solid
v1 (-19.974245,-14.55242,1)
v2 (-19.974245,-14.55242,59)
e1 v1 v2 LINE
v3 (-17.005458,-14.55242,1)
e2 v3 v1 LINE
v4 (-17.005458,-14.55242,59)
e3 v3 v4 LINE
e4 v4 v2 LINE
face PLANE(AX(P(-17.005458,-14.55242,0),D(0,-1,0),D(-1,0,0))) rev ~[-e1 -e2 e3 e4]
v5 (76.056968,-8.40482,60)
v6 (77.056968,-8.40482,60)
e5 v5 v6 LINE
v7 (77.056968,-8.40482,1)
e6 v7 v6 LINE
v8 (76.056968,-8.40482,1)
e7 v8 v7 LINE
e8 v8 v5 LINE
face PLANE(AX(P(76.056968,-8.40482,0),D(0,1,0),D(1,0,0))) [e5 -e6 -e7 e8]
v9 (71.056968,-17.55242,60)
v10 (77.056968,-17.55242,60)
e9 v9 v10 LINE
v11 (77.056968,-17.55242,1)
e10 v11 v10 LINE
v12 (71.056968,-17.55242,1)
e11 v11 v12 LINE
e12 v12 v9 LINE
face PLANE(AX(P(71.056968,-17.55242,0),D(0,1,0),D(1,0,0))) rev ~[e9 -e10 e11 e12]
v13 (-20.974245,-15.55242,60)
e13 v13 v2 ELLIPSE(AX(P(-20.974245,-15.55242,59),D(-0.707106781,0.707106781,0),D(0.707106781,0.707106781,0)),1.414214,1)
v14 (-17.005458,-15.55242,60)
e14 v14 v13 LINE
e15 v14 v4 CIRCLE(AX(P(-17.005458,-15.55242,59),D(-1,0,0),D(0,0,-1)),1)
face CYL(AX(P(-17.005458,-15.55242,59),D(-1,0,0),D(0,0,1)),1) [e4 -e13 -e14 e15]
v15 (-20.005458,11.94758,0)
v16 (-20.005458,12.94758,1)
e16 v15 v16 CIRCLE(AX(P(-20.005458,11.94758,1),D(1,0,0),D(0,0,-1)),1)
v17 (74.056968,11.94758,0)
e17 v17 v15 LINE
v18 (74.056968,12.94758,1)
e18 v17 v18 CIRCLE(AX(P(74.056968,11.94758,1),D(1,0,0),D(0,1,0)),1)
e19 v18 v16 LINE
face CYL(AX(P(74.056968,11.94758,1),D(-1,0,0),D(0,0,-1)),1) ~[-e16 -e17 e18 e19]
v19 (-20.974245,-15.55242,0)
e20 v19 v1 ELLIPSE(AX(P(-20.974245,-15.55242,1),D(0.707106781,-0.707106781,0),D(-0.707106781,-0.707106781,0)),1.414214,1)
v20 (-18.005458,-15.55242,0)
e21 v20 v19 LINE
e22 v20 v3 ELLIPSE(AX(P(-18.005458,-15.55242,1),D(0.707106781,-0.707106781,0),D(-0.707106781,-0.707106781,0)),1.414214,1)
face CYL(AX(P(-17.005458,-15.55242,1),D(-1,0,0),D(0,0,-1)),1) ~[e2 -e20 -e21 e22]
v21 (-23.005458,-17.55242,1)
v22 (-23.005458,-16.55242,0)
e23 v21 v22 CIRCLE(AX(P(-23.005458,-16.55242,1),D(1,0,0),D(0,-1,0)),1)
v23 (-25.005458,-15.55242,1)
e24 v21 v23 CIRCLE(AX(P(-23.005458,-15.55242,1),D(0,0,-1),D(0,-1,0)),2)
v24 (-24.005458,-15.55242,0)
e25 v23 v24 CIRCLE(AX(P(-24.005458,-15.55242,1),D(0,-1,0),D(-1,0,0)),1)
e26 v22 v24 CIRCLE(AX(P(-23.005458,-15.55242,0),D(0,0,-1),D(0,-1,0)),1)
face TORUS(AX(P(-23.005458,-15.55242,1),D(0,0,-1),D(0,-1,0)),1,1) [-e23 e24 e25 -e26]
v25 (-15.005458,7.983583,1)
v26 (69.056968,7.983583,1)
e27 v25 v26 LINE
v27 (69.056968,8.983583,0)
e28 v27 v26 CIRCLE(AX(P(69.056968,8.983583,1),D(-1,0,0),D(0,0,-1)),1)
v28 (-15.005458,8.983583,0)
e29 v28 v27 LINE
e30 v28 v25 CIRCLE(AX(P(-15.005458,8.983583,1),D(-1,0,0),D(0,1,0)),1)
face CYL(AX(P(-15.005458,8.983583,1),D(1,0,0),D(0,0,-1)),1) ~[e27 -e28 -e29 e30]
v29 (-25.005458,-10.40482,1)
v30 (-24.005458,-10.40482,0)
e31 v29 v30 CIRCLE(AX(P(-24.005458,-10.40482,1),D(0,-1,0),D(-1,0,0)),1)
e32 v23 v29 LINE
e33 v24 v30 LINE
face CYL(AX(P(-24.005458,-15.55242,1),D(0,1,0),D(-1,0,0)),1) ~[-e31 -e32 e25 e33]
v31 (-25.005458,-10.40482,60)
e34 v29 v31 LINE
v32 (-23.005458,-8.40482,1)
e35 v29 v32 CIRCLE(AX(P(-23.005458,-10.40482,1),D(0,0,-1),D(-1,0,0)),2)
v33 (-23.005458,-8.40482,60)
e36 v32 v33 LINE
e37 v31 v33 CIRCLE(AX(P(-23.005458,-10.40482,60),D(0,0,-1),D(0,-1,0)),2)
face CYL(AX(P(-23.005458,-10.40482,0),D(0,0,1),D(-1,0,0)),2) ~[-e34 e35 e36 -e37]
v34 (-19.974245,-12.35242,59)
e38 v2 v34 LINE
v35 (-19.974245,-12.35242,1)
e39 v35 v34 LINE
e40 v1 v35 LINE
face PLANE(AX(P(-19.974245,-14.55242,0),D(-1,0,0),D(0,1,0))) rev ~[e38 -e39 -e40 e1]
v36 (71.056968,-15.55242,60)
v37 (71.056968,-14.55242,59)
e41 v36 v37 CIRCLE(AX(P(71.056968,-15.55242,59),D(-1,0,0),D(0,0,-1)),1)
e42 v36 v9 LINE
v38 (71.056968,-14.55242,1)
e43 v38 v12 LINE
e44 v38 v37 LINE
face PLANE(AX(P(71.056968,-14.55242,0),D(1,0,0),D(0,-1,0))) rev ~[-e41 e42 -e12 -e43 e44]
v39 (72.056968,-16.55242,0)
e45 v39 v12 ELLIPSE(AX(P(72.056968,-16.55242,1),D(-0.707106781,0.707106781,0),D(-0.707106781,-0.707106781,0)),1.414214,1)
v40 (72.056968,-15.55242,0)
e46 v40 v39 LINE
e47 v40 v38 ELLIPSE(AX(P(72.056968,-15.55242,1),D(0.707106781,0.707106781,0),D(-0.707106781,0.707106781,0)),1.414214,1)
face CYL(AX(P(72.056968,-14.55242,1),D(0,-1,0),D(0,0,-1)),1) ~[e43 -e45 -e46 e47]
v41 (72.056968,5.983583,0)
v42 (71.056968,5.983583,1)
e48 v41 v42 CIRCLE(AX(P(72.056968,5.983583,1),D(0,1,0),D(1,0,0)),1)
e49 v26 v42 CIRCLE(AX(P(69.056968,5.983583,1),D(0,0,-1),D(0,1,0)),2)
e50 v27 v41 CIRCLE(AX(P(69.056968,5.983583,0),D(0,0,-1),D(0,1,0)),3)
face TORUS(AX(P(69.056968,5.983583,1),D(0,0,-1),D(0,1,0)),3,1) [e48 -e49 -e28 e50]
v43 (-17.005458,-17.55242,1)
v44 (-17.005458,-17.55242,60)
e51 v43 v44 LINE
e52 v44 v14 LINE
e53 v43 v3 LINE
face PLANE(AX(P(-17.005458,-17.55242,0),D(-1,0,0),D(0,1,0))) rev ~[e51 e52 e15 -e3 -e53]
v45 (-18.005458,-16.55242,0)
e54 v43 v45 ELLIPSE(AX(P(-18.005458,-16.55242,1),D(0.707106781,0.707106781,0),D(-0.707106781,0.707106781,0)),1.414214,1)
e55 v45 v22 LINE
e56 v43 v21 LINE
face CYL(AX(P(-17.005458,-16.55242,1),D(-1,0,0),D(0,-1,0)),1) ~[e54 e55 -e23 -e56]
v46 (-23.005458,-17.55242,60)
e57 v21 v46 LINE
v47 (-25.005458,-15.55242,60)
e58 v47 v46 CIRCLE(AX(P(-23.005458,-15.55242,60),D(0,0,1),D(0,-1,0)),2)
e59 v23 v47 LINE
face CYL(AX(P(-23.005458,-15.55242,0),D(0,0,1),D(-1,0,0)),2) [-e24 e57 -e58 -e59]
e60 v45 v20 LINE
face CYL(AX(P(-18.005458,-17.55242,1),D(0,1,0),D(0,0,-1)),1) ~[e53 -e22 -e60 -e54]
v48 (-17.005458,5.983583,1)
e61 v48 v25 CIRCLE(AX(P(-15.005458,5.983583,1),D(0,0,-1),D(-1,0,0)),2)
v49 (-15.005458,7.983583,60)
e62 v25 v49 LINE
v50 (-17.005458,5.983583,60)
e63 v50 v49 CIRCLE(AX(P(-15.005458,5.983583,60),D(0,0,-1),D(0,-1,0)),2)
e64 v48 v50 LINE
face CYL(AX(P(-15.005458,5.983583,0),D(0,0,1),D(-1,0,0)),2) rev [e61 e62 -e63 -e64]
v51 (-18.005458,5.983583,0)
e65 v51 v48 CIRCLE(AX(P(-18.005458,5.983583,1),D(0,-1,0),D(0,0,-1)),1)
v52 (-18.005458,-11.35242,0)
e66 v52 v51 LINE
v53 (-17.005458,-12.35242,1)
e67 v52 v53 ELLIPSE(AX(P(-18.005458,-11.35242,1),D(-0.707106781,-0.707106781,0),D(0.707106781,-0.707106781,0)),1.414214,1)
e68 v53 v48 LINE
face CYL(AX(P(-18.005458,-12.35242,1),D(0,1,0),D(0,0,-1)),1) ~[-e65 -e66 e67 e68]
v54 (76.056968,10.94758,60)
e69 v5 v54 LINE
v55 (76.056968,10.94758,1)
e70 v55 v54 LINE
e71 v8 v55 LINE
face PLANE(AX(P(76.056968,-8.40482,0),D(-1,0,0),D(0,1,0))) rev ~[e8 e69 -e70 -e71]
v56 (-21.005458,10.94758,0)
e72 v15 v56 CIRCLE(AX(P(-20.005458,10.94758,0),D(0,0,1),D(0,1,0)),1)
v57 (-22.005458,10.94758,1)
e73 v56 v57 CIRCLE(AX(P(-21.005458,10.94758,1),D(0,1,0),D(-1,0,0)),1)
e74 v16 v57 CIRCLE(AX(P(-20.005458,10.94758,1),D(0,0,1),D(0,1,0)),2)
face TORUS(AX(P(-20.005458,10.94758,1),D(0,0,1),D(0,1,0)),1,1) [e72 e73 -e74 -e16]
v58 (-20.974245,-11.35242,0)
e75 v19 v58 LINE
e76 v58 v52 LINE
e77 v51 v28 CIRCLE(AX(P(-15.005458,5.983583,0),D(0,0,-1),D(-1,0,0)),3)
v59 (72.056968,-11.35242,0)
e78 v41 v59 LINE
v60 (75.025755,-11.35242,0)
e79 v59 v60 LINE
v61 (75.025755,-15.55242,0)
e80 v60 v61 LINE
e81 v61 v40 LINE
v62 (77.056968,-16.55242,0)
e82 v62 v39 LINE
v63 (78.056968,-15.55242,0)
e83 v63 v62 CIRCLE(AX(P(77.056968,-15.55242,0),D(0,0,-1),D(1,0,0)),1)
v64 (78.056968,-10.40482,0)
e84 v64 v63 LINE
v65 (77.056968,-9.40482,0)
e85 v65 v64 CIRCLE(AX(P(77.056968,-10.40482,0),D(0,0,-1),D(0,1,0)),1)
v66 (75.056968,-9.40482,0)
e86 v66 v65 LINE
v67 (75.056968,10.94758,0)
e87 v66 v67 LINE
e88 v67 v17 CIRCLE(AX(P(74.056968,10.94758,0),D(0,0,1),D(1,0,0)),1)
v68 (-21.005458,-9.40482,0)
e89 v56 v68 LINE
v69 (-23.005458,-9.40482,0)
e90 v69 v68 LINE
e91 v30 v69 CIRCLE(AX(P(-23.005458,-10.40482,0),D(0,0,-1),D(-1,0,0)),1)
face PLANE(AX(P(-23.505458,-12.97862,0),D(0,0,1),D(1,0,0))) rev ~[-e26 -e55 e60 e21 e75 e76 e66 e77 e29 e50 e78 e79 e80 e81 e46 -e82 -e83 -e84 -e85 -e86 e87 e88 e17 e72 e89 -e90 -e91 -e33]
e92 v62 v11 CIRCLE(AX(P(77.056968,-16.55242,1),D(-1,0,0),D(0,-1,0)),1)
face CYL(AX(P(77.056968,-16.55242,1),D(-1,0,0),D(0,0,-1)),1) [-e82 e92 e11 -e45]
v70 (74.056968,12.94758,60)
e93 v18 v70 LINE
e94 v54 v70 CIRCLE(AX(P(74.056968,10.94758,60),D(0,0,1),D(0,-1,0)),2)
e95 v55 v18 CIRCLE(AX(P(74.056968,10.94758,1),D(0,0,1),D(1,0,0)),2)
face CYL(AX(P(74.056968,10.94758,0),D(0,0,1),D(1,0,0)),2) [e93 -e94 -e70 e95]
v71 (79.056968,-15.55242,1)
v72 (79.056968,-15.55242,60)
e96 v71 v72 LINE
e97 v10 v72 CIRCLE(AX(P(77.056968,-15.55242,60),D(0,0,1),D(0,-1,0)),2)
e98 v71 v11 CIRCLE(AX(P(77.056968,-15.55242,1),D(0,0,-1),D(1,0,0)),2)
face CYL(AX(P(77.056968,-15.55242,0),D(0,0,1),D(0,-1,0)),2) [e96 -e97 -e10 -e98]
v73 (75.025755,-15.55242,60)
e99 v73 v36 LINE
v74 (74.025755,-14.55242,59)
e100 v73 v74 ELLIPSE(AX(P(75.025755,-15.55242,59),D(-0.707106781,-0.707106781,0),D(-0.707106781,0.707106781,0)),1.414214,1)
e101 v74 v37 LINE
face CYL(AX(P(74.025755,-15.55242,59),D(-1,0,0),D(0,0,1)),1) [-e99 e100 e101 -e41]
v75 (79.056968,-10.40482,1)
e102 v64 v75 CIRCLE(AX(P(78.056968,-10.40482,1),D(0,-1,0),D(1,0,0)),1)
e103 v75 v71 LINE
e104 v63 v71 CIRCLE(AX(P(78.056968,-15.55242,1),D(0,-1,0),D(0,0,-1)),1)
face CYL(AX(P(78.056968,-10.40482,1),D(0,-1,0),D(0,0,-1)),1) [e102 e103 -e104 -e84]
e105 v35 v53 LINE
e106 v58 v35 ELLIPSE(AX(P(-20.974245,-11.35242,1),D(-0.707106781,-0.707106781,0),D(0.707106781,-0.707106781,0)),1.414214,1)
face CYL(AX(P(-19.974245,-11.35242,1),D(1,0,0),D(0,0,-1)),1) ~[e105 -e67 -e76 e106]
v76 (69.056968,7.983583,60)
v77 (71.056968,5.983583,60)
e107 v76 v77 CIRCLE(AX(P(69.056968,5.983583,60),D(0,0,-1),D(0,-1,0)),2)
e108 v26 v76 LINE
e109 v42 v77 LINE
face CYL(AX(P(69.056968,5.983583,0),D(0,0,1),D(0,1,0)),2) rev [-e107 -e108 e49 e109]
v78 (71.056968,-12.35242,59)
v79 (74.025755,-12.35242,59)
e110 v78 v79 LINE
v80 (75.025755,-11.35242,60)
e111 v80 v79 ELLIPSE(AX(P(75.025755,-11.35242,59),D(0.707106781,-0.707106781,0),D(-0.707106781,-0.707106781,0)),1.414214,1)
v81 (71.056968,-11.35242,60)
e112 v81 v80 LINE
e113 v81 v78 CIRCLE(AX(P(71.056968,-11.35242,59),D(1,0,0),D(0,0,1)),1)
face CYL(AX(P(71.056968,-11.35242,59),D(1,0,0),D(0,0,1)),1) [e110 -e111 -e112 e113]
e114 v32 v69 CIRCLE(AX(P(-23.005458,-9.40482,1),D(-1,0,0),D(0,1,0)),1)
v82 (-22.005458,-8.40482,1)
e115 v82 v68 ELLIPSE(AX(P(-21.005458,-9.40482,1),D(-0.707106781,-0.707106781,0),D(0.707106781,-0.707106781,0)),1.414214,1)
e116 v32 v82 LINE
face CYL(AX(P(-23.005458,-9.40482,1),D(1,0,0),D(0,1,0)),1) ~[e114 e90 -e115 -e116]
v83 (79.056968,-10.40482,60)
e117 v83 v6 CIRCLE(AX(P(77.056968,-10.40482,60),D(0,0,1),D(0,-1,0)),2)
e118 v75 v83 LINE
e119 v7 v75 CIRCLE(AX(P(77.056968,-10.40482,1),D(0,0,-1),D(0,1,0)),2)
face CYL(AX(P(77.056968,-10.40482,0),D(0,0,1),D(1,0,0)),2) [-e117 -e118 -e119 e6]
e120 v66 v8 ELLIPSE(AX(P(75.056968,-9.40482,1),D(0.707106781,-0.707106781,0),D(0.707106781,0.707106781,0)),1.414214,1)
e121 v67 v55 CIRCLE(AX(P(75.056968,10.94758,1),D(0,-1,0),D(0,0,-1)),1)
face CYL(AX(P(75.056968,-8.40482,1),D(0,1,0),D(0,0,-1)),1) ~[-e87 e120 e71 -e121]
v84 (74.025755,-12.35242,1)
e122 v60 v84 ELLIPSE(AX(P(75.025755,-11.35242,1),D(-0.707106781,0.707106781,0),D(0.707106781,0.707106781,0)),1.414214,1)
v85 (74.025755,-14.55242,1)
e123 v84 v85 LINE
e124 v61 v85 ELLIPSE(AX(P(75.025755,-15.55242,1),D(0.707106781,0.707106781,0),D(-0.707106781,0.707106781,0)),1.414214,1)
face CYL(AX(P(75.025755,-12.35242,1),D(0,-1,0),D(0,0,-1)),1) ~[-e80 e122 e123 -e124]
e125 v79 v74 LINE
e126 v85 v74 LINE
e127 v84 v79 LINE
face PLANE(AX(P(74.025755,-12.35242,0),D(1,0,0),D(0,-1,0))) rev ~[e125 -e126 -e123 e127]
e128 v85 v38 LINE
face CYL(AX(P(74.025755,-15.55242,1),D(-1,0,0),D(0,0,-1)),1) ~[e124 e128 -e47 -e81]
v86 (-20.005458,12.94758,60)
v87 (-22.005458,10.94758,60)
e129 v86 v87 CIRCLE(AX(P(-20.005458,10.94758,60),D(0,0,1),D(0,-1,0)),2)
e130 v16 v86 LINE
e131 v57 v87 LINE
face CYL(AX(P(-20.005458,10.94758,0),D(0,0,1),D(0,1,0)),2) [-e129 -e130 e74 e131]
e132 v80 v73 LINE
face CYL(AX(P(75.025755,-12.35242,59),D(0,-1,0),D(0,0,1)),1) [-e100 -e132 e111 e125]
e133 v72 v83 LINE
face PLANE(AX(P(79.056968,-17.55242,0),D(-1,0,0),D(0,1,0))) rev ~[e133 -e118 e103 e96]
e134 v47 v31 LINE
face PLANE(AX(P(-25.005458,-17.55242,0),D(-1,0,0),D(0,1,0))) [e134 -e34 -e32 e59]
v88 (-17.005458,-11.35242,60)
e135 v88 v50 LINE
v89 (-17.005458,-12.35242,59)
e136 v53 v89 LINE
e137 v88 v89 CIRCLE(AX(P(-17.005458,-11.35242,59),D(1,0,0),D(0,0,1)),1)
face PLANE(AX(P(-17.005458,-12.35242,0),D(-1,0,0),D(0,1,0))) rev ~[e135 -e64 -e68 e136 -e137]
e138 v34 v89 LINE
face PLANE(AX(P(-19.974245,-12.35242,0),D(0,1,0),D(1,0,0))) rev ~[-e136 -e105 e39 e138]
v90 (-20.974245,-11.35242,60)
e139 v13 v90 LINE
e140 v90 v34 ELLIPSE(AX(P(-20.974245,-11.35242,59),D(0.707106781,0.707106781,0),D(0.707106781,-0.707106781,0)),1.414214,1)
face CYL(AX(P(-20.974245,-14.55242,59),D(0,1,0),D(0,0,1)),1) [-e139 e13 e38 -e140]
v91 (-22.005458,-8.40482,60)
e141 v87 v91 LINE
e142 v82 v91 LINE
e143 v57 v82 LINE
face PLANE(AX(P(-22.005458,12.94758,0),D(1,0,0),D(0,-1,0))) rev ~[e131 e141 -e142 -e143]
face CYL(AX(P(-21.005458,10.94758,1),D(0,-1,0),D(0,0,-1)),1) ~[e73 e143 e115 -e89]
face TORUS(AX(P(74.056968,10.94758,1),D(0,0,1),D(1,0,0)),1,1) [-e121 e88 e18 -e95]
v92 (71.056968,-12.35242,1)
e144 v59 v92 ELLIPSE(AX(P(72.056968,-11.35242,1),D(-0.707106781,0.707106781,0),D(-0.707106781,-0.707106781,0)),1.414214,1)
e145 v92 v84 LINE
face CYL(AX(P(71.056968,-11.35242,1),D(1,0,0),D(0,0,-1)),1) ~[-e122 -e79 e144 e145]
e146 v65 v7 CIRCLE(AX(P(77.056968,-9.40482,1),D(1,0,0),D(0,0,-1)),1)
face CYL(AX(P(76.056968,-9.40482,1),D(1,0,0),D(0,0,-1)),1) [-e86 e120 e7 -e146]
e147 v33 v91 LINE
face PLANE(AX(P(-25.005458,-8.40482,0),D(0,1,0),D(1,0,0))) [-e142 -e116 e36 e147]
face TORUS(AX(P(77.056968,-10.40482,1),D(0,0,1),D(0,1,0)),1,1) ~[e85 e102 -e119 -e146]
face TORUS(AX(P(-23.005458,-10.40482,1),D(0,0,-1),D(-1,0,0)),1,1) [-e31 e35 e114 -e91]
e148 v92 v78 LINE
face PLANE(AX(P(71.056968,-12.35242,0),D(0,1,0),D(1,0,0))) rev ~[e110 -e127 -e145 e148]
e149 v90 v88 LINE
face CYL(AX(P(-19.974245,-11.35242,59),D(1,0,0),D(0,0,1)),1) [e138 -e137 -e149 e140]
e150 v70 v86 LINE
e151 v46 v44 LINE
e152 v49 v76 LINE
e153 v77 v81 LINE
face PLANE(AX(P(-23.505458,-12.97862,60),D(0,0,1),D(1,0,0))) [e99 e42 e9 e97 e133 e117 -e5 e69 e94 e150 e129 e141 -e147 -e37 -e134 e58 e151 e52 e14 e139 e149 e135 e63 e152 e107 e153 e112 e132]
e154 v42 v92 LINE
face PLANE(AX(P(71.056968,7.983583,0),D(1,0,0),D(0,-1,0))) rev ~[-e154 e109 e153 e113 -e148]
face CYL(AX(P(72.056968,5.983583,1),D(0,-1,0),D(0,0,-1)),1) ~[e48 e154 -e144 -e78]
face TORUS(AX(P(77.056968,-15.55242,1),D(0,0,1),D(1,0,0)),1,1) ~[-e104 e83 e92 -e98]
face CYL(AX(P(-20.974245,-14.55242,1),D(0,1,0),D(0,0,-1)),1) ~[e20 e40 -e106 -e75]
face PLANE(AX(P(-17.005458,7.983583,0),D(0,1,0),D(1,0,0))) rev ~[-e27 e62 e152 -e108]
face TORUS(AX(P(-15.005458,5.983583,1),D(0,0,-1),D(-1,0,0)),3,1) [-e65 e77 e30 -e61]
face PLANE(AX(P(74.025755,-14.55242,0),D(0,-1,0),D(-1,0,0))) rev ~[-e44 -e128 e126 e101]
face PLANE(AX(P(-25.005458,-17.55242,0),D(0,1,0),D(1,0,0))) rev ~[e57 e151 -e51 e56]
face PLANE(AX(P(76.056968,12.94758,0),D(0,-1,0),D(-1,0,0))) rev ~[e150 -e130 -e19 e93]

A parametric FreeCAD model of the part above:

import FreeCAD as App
import Part
import Sketcher
from FreeCAD import Vector
Q = App.Units.Quantity


def edges_at(feature, points):
    """Names of the edges that pass closest to the given points."""
    edges = feature.Shape.Edges
    near = lambda p: min(range(len(edges)), key=lambda i: edges[i].distToShape(Part.Vertex(*p))[0])
    return sorted({f"Edge{near(p) + 1}" for p in points})


def add_polygon(sketch, points):
    """Adds a closed chain of lines whose ends are joined by coincident constraints."""
    first, n = sketch.GeometryCount, len(points)
    for a, b in zip(points, points[1:] + points[:1]):
        sketch.addGeometry(Part.LineSegment(App.Vector(*a, 0), App.Vector(*b, 0)), False)
    for i in range(n):
        sketch.addConstraint(Sketcher.Constraint("Coincident", first + i, 2, first + (i + 1) % n, 1))

doc = App.newDocument("Part")
body = doc.addObject("PartDesign::Body", "Body")

# Sketch on XY plane
sketch1 = doc.addObject("Sketcher::SketchObject", "Sketch")
body.addObject(sketch1)
sketch1.AttachmentSupport = (doc.XY_Plane, [""])
sketch1.MapMode = "FlatFace"
add_polygon(sketch1, [(-25, -8.4), (-25, -17.6), (-17, -17.6), (-17, -14.6), (-20, -14.6), (-20, -12.4), (-17, -12.4), (-17, 8), (71.1, 8), (71.1, -12.4), (74, -12.4), (74, -14.6), (71.1, -14.6), (71.1, -17.6), (79.1, -17.6), (79.1, -8.4), (76.1, -8.4), (76.1, 12.9), (-22, 12.9), (-22, -8.4)])  # lines 0-19
sketch1.addConstraint([
    Sketcher.Constraint("Vertical", 0),
    Sketcher.Constraint("Horizontal", 1),
    Sketcher.Constraint("Vertical", 2),
    Sketcher.Constraint("Horizontal", 3),
    Sketcher.Constraint("Vertical", 4),
    Sketcher.Constraint("Horizontal", 5),
    Sketcher.Constraint("Vertical", 6),
    Sketcher.Constraint("Horizontal", 7),
    Sketcher.Constraint("Vertical", 8),
    Sketcher.Constraint("Horizontal", 9),
    Sketcher.Constraint("Vertical", 10),
    Sketcher.Constraint("Horizontal", 11),
    Sketcher.Constraint("Vertical", 12),
    Sketcher.Constraint("Horizontal", 13),
    Sketcher.Constraint("Vertical", 14),
    Sketcher.Constraint("Horizontal", 15),
    Sketcher.Constraint("Vertical", 16),
    Sketcher.Constraint("Horizontal", 17),
    Sketcher.Constraint("Vertical", 18),
    Sketcher.Constraint("Horizontal", 19),
    Sketcher.Constraint("Horizontal", 5, 2, 8, 2),
    Sketcher.Constraint("Horizontal", 3, 2, 10, 2),
    Sketcher.Constraint("Horizontal", 1, 2, 12, 2),
    Sketcher.Constraint("Horizontal", 15, 2, 18, 2),
    Sketcher.Constraint("Vertical", 2, 2, 5, 2),
    Sketcher.Constraint("Vertical", 8, 2, 11, 2),
    Sketcher.Constraint("Equal", 5, 9),
    Sketcher.Constraint("Equal", 1, 13),
    Sketcher.Constraint("Equal", 15, 19),
    Sketcher.Constraint("Equal", 19, 2),
    Sketcher.Constraint("DistanceX", 1, 1, 1, 2, Q("8 mm")),
    Sketcher.Constraint("DistanceX", 15, 2, 15, 1, Q("3 mm")),
    Sketcher.Constraint("DistanceY", 4, 1, 4, 2, Q("2.2 mm")),
    Sketcher.Constraint("DistanceY", 9, 2, 16, 2, Q("25.3 mm")),
    Sketcher.Constraint("DistanceY", 0, 2, 0, 1, Q("9.1476 mm")),
    Sketcher.Constraint("DistanceX", 3, 2, 3, 1, Q("2.968787 mm")),
    Sketcher.Constraint("DistanceX", 7, 1, 7, 2, Q("88.062426 mm")),
    Sketcher.Constraint("DistanceY", 6, 1, 6, 2, Q("20.336003 mm")),
    Sketcher.Constraint("DistanceX", 0, 2, -1, 1, Q("25.005458 mm")),
    Sketcher.Constraint("DistanceY", 0, 2, -1, 1, Q("17.55242 mm")),
])
pad1 = doc.addObject("PartDesign::Pad", "Pad")
body.addObject(pad1)
pad1.Profile = sketch1
pad1.Length = 60
doc.recompute()

fillet = doc.addObject("PartDesign::Fillet", "Fillet")
body.addObject(fillet)
fillet.Base = (pad1, edges_at(pad1, [
    (-22.005, 12.948, 30),
    (76.057, 12.948, 30),
    (-25.005, -8.405, 30),
    (-25.005, -17.552, 30),
    (79.057, -8.405, 30),
    (79.057, -17.552, 30),
    (-17.005, 7.984, 30),
    (71.057, 7.984, 30),
]))
fillet.Radius = 2
doc.recompute()

fillet2 = doc.addObject("PartDesign::Fillet", "Fillet001")
body.addObject(fillet2)
fillet2.Base = (fillet, edges_at(fillet, [
    (-18.49, -14.552, 0),
    (-18.49, -12.352, 0),
    (-19.974, -13.452, 0),
    (-18.49, -12.352, 60),
    (-19.974, -13.452, 60),
    (-18.49, -14.552, 60),
    (72.541, -14.552, 0),
    (-25.005, -12.979, 0),
    (-24.42, -8.991, 0),
    (-24.42, -16.967, 0),
    (-22.505, -8.405, 0),
    (-20.005, -17.552, 0),
    (-22.005, 1.271, 0),
    (-17.005, -16.052, 0),
    (-21.42, 12.362, 0),
    (27.026, 12.948, 0),
    (75.471, 12.362, 0),
    (76.057, 1.271, 0),
    (-17.005, -3.184, 0),
    (76.557, -8.405, 0),
    (-16.42, 7.398, 0),
    (78.471, -8.991, 0),
    (27.026, 7.984, 0),
    (79.057, -12.979, 0),
    (70.471, 7.398, 0),
    (78.471, -16.967, 0),
    (71.057, -3.184, 0),
    (74.057, -17.552, 0),
    (72.541, -12.352, 0),
    (71.057, -16.052, 0),
    (74.026, -13.452, 0),
    (72.541, -14.552, 60),
    (74.026, -13.452, 60),
    (72.541, -12.352, 60),
]))
fillet2.Radius = 1

doc.recompute()
